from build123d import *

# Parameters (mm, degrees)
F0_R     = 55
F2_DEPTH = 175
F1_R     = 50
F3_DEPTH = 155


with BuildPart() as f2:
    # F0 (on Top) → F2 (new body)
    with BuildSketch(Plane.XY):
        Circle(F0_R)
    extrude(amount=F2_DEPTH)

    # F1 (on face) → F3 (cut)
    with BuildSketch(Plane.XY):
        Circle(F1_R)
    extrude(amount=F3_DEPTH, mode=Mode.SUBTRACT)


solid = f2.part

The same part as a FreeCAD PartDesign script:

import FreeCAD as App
import Part
import Sketcher

V = App.Vector

doc = App.newDocument("Part")
body = doc.addObject("PartDesign::Body", "Body")

sketch1 = doc.addObject("Sketcher::SketchObject", "Sketch")
body.addObject(sketch1)
sketch1.AttachmentSupport = (doc.XY_Plane, [""])
sketch1.MapMode = "FlatFace"
sketch1.addGeometry(Part.Circle(V(0, 0, 0), V(0, 0, 1), 55), False)
sketch1.addConstraint(Sketcher.Constraint("Coincident", 0, 3, -1, 1))
sketch1.addConstraint(Sketcher.Constraint("Diameter", 0, 110.0))
pad1 = doc.addObject("PartDesign::Pad", "Pad")
body.addObject(pad1)
pad1.Profile = sketch1
pad1.Length = 175

sketch2 = doc.addObject("Sketcher::SketchObject", "Sketch001")
body.addObject(sketch2)
sketch2.AttachmentSupport = (doc.XY_Plane, [""])
sketch2.MapMode = "FlatFace"
sketch2.addGeometry(Part.Circle(V(0, 0, 0), V(0, 0, 1), 50), False)
sketch2.addConstraint(Sketcher.Constraint("Coincident", 0, 3, -1, 1))
sketch2.addConstraint(Sketcher.Constraint("Diameter", 0, 100.0))
pocket1 = doc.addObject("PartDesign::Pocket", "Pocket")
body.addObject(pocket1)
pocket1.Profile = sketch2
pocket1.Length = 155
pocket1.Reversed = True

doc.recompute()
